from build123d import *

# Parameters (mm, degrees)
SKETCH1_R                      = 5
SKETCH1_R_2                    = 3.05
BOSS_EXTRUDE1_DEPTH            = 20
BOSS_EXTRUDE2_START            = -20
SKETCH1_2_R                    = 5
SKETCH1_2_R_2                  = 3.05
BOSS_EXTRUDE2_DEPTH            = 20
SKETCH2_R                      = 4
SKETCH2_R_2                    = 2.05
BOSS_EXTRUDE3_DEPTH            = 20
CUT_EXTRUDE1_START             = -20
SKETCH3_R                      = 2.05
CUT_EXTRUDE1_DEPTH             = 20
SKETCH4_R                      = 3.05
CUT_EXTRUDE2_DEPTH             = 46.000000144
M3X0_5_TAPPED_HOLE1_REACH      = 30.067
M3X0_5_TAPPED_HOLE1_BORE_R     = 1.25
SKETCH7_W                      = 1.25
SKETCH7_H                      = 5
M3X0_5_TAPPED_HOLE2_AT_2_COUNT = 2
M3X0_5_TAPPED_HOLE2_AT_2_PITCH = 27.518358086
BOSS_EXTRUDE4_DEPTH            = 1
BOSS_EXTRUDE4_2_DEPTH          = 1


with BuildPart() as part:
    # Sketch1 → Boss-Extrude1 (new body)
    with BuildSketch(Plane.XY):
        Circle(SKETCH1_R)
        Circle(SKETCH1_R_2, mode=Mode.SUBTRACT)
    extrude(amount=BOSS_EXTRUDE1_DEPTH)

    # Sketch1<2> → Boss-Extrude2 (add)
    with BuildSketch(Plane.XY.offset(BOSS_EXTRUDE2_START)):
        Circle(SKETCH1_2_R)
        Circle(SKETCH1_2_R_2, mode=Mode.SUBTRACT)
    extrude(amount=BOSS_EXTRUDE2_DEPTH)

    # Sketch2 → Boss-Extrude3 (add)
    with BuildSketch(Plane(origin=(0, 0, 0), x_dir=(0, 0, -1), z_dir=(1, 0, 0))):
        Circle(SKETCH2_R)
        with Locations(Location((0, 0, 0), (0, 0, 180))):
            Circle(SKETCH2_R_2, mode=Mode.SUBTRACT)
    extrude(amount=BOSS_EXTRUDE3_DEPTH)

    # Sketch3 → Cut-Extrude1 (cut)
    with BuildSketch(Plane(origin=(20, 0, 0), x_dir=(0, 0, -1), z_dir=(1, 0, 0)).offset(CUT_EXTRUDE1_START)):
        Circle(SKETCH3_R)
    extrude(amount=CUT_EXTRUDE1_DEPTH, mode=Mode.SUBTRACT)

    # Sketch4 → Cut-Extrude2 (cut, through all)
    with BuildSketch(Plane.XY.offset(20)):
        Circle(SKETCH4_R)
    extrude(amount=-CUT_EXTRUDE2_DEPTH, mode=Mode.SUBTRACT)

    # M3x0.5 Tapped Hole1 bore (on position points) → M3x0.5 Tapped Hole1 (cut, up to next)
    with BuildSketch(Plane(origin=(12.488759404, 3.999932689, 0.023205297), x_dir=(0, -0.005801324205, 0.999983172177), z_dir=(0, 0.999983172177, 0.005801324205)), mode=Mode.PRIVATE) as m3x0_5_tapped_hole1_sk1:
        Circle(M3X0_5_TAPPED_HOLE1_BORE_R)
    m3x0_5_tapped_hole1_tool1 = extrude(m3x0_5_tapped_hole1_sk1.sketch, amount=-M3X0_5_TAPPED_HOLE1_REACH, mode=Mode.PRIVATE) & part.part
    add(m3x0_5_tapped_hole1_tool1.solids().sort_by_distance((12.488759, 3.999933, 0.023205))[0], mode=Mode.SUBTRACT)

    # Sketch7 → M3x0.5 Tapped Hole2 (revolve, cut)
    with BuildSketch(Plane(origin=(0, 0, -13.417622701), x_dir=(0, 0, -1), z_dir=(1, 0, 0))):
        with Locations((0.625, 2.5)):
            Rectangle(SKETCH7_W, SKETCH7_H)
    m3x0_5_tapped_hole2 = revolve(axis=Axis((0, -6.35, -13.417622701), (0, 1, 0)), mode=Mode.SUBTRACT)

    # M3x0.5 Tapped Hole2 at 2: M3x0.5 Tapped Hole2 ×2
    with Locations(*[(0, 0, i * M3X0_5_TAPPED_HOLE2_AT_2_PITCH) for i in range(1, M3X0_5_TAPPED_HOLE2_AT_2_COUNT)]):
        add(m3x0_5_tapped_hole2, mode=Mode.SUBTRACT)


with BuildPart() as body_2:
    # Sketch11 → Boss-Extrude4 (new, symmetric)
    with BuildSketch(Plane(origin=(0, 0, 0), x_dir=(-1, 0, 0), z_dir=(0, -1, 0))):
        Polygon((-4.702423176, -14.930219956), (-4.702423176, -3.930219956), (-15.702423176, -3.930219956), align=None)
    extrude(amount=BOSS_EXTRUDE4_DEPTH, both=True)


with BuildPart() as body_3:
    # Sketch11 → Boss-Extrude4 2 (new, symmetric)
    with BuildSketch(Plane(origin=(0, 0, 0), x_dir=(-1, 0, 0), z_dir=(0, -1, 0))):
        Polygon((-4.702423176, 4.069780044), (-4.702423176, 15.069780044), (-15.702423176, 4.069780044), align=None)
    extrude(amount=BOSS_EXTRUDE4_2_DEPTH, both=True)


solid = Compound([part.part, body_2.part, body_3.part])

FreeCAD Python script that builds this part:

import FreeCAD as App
import Part
import Sketcher

V = App.Vector
Q = App.Units.Quantity

doc = App.newDocument("Part")
body = doc.addObject("PartDesign::Body", "Body")

# Sketch on XY plane
sketch1 = body.newObject("Sketcher::SketchObject", "Sketch")
sketch1.AttachmentSupport = (doc.getObject("XY_Plane"), [""])
sketch1.MapMode = "FlatFace"
sketch1.addGeometry([
    Part.Circle(V(0, 0, 0), V(0, 0, 1), 5),
    Part.Circle(V(0, 0, 0), V(0, 0, 1), 3.05),
], False)
sketch1.addConstraint([
    Sketcher.Constraint("Coincident", 0, 3, -1, 1),
    Sketcher.Constraint("Coincident", 1, 3, -1, 1),
    Sketcher.Constraint("Diameter", 0, Q("10 mm")),
    Sketcher.Constraint("Diameter", 1, Q("6.1 mm")),
])
pad1 = body.newObject("PartDesign::Pad", "Pad")
pad1.Profile = sketch1
pad1.Length = 20

# Sketch on XY plane
sketch2 = body.newObject("Sketcher::SketchObject", "Sketch001")
sketch2.AttachmentSupport = (doc.getObject("XY_Plane"), [""])
sketch2.MapMode = "FlatFace"
sketch2.AttachmentOffset = App.Placement(V(0, 0, -20), App.Rotation())
sketch2.addGeometry([
    Part.Circle(V(0, 0, 0), V(0, 0, 1), 5),
    Part.Circle(V(0, 0, 0), V(0, 0, 1), 3.05),
], False)
sketch2.addConstraint([
    Sketcher.Constraint("Coincident", 0, 3, -1, 1),
    Sketcher.Constraint("Coincident", 1, 3, -1, 1),
    Sketcher.Constraint("Diameter", 0, Q("10 mm")),
    Sketcher.Constraint("Diameter", 1, Q("6.1 mm")),
])
pad2 = body.newObject("PartDesign::Pad", "Pad001")
pad2.Profile = sketch2
pad2.Length = 20

# Sketch on YZ plane
sketch3 = body.newObject("Sketcher::SketchObject", "Sketch002")
sketch3.AttachmentSupport = (doc.getObject("YZ_Plane"), [""])
sketch3.MapMode = "FlatFace"
sketch3.addGeometry([
    Part.Circle(V(0, 0, 0), V(0, 0, 1), 4),
    Part.Circle(V(0, 0, 0), V(0, 0, 1), 2.05),
], False)
sketch3.addConstraint([
    Sketcher.Constraint("Coincident", 0, 3, -1, 1),
    Sketcher.Constraint("Coincident", 1, 3, -1, 1),
    Sketcher.Constraint("Diameter", 0, Q("8 mm")),
    Sketcher.Constraint("Diameter", 1, Q("4.1 mm")),
])
pad3 = body.newObject("PartDesign::Pad", "Pad002")
pad3.Profile = sketch3
pad3.Length = 20

# Sketch on YZ plane
sketch4 = body.newObject("Sketcher::SketchObject", "Sketch003")
sketch4.AttachmentSupport = (doc.getObject("YZ_Plane"), [""])
sketch4.MapMode = "FlatFace"
sketch4.addGeometry(Part.Circle(V(0, 0, 0), V(0, 0, 1), 2.05), False)
sketch4.addConstraint([
    Sketcher.Constraint("Coincident", 0, 3, -1, 1),
    Sketcher.Constraint("Diameter", 0, Q("4.1 mm")),
])
pocket1 = body.newObject("PartDesign::Pocket", "Pocket")
pocket1.Profile = sketch4
pocket1.Length = 20
pocket1.Reversed = True

# Sketch on XY plane
sketch5 = body.newObject("Sketcher::SketchObject", "Sketch004")
sketch5.AttachmentSupport = (doc.getObject("XY_Plane"), [""])
sketch5.MapMode = "FlatFace"
sketch5.AttachmentOffset = App.Placement(V(0, 0, 20), App.Rotation())
sketch5.addGeometry(Part.Circle(V(0, 0, 0), V(0, 0, 1), 3.05), False)
sketch5.addConstraint([
    Sketcher.Constraint("Coincident", 0, 3, -1, 1),
    Sketcher.Constraint("Diameter", 0, Q("6.1 mm")),
])
pocket2 = body.newObject("PartDesign::Pocket", "Pocket001")
pocket2.Profile = sketch5
pocket2.Type = "ThroughAll"

# Sketch on an angled plane
sketch6 = body.newObject("Sketcher::SketchObject", "Sketch005")
sketch6.Placement = App.Placement(V(12.488759, 3.999933, 0.023205), App.Rotation(V(0, -0.005801324, 0.999983172), V(1, 0, 0), V(0, 0.999983172, 0.005801324), "ZXY"))
sketch6.addGeometry(Part.Circle(V(0, 0, 0), V(0, 0, 1), 1.25), False)
sketch6.addConstraint([
    Sketcher.Constraint("Coincident", 0, 3, -1, 1),
    Sketcher.Constraint("Diameter", 0, Q("2.5 mm")),
])
pocket3 = body.newObject("PartDesign::Pocket", "Pocket002")
pocket3.Profile = sketch6
pocket3.Length = 2.375192

# Sketch on YZ plane
sketch7 = body.newObject("Sketcher::SketchObject", "Sketch006")
sketch7.AttachmentSupport = (doc.getObject("YZ_Plane"), [""])
sketch7.MapMode = "FlatFace"
sketch7.addGeometry([
    Part.LineSegment(V(5, -13.417623, 0), V(0, -13.417623, 0)),
    Part.LineSegment(V(0, -13.417623, 0), V(0, -14.667623, 0)),
    Part.LineSegment(V(0, -14.667623, 0), V(5, -14.667623, 0)),
    Part.LineSegment(V(5, -14.667623, 0), V(5, -13.417623, 0)),
], False)
sketch7.addGeometry(Part.LineSegment(V(0, -13.417623, 0), V(5, -13.417623, 0)), True)  # axis
sketch7.addConstraint([
    Sketcher.Constraint("Coincident", 0, 2, 1, 1),
    Sketcher.Constraint("Coincident", 1, 2, 2, 1),
    Sketcher.Constraint("Coincident", 2, 2, 3, 1),
    Sketcher.Constraint("Coincident", 3, 2, 0, 1),
    Sketcher.Constraint("Horizontal", 0),
    Sketcher.Constraint("Vertical", 1),
    Sketcher.Constraint("Horizontal", 2),
    Sketcher.Constraint("Vertical", 3),
    Sketcher.Constraint("Horizontal", 4),
    Sketcher.Constraint("Coincident", 4, 1, 0, 2),
    Sketcher.Constraint("PointOnObject", 0, 2, -2),
    Sketcher.Constraint("Vertical", 2, 2, 4, 2),
    Sketcher.Constraint("DistanceX", 0, 2, 0, 1, Q("5 mm")),
    Sketcher.Constraint("DistanceY", 1, 2, 1, 1, Q("1.25 mm")),
    Sketcher.Constraint("DistanceY", 0, 2, -1, 1, Q("13.417623 mm")),
])
groove = body.newObject("PartDesign::Groove", "Groove")
groove.Profile = sketch7
groove.ReferenceAxis = (sketch7, ["Axis0"])
groove.Angle = 360
doc.recompute()

linearpattern = body.newObject("PartDesign::LinearPattern", "LinearPattern")
linearpattern.Originals = [groove]
linearpattern.Direction = (doc.getObject("Z_Axis"), [""])
linearpattern.Mode = "offset"
linearpattern.Offset = 27.518358
linearpattern.Occurrences = 2
body.Tip = linearpattern
body2 = doc.addObject("PartDesign::Body", "Body001")

# Sketch on XZ plane
sketch8 = body2.newObject("Sketcher::SketchObject", "Sketch007")
sketch8.AttachmentSupport = (doc.getObject("XZ_Plane001"), [""])
sketch8.MapMode = "FlatFace"
sketch8.addGeometry([
    Part.LineSegment(V(4.702423, 14.93022, 0), V(4.702423, 3.93022, 0)),
    Part.LineSegment(V(4.702423, 3.93022, 0), V(15.702423, 3.93022, 0)),
    Part.LineSegment(V(15.702423, 3.93022, 0), V(4.702423, 14.93022, 0)),
], False)
sketch8.addConstraint([
    Sketcher.Constraint("Coincident", 0, 2, 1, 1),
    Sketcher.Constraint("Coincident", 1, 2, 2, 1),
    Sketcher.Constraint("Coincident", 2, 2, 0, 1),
    Sketcher.Constraint("Vertical", 0),
    Sketcher.Constraint("Horizontal", 1),
    Sketcher.Constraint("Equal", 1, 0),
    Sketcher.Constraint("DistanceX", 1, 1, 1, 2, Q("11 mm")),
    Sketcher.Constraint("DistanceY", -1, 1, 0, 2, Q("3.93022 mm")),
    Sketcher.Constraint("DistanceX", -1, 1, 0, 2, Q("4.702423 mm")),
])
pad4 = body2.newObject("PartDesign::Pad", "Pad003")
pad4.Profile = sketch8
pad4.Length = 2
pad4.Midplane = True
body3 = doc.addObject("PartDesign::Body", "Body002")

# Sketch on XZ plane
sketch9 = body3.newObject("Sketcher::SketchObject", "Sketch008")
sketch9.AttachmentSupport = (doc.getObject("XZ_Plane002"), [""])
sketch9.MapMode = "FlatFace"
sketch9.addGeometry([
    Part.LineSegment(V(4.702423, -4.06978, 0), V(4.702423, -15.06978, 0)),
    Part.LineSegment(V(4.702423, -15.06978, 0), V(15.702423, -4.06978, 0)),
    Part.LineSegment(V(15.702423, -4.06978, 0), V(4.702423, -4.06978, 0)),
], False)
sketch9.addConstraint([
    Sketcher.Constraint("Coincident", 0, 2, 1, 1),
    Sketcher.Constraint("Coincident", 1, 2, 2, 1),
    Sketcher.Constraint("Coincident", 2, 2, 0, 1),
    Sketcher.Constraint("Vertical", 0),
    Sketcher.Constraint("Horizontal", 2),
    Sketcher.Constraint("Equal", 2, 0),
    Sketcher.Constraint("DistanceX", 2, 2, 2, 1, Q("11 mm")),
    Sketcher.Constraint("DistanceY", 0, 2, -1, 1, Q("15.06978 mm")),
    Sketcher.Constraint("DistanceX", -1, 1, 0, 2, Q("4.702423 mm")),
])
pad5 = body3.newObject("PartDesign::Pad", "Pad004")
pad5.Profile = sketch9
pad5.Length = 2
pad5.Midplane = True

doc.recompute()
